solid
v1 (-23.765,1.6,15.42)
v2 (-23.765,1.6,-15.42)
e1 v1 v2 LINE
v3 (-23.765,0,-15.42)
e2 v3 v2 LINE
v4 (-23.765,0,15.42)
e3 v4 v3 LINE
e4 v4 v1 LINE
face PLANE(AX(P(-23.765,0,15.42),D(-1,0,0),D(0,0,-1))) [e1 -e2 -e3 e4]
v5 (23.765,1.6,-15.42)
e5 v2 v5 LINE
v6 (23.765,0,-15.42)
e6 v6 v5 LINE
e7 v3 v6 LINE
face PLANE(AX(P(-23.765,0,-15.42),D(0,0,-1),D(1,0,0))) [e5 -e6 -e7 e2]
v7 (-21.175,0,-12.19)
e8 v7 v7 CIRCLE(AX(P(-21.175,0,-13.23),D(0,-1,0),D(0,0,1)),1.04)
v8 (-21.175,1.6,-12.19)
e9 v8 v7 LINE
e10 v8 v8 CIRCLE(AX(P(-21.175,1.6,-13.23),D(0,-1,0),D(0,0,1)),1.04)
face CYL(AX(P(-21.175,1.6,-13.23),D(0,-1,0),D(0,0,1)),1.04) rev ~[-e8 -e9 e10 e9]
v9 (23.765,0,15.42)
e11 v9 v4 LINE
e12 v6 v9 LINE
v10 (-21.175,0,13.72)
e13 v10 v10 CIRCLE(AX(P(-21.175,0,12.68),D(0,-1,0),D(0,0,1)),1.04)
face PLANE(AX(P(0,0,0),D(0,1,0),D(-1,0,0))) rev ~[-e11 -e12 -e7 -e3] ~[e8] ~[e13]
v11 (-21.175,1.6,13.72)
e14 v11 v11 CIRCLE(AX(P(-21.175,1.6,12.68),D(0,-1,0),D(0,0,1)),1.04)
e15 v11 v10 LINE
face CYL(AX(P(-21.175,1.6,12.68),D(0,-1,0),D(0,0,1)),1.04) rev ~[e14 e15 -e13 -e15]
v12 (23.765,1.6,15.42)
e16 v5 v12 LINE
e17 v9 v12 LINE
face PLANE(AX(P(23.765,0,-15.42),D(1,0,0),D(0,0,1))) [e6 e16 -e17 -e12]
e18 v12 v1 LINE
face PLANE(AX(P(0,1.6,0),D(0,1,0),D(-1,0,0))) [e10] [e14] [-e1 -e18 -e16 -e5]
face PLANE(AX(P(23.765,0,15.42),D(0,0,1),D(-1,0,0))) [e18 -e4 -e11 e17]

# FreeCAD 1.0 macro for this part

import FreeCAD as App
import Part
import Sketcher
Q = App.Units.Quantity

doc = App.newDocument("Part")
body = doc.addObject("PartDesign::Body", "Body")

sketch1 = body.newObject("Sketcher::SketchObject", "Sketch")
sketch1.AttachmentSupport = (doc.getObject("XZ_Plane"), [""])
sketch1.MapMode = "FlatFace"
sketch1.addGeometry(Part.LineSegment(App.Vector(-24, 15, 0), App.Vector(24, 15, 0)), False)
sketch1.addGeometry(Part.LineSegment(App.Vector(24, 15, 0), App.Vector(24, -15, 0)), False)
sketch1.addGeometry(Part.LineSegment(App.Vector(24, -15, 0), App.Vector(-24, -15, 0)), False)
sketch1.addGeometry(Part.LineSegment(App.Vector(-24, -15, 0), App.Vector(-24, 15, 0)), False)
sketch1.addConstraint(Sketcher.Constraint("Coincident", 0, 2, 1, 1))
sketch1.addConstraint(Sketcher.Constraint("Coincident", 1, 2, 2, 1))
sketch1.addConstraint(Sketcher.Constraint("Coincident", 2, 2, 3, 1))
sketch1.addConstraint(Sketcher.Constraint("Coincident", 3, 2, 0, 1))
sketch1.addConstraint(Sketcher.Constraint("Horizontal", 0))
sketch1.addConstraint(Sketcher.Constraint("Vertical", 1))
sketch1.addConstraint(Sketcher.Constraint("Horizontal", 2))
sketch1.addConstraint(Sketcher.Constraint("Vertical", 3))
sketch1.addConstraint(Sketcher.Constraint("Symmetric", 0, 2, 2, 2, -1, 1))
sketch1.addConstraint(Sketcher.Constraint("DistanceX", 0, 1, 0, 2, Q("47.53 mm")))
sketch1.addConstraint(Sketcher.Constraint("DistanceY", 1, 2, 1, 1, Q("30.84 mm")))
pad1 = body.newObject("PartDesign::Pad", "Pad")
pad1.Profile = sketch1
pad1.Length = Q("0.0629921 in")
pad1.Reversed = True

sketch2 = body.newObject("Sketcher::SketchObject", "Sketch001")
sketch2.AttachmentSupport = (doc.getObject("XZ_Plane"), [""])
sketch2.MapMode = "FlatFace"
sketch2.AttachmentOffset = App.Placement(App.Vector(0, 0, -0.0629921 * 25.4), App.Rotation())
sketch2.addGeometry(Part.Circle(App.Vector(-21.2, 12.7, 0), App.Vector(0, 0, 1), 1), False)
sketch2.addGeometry(Part.Circle(App.Vector(-21.2, -13.2, 0), App.Vector(0, 0, 1), 1), False)
sketch2.addConstraint(Sketcher.Constraint("Equal", 0, 1))
sketch2.addConstraint(Sketcher.Constraint("Vertical", 0, 3, 1, 3))
sketch2.addConstraint(Sketcher.Constraint("Diameter", 0, Q("0.0819 in")))
sketch2.addConstraint(Sketcher.Constraint("DistanceX", 0, 3, -1, 1, Q("21.175 mm")))
sketch2.addConstraint(Sketcher.Constraint("DistanceY", -1, 1, 0, 3, Q("12.68 mm")))
sketch2.addConstraint(Sketcher.Constraint("DistanceY", 1, 3, -1, 1, Q("13.23 mm")))
doc.recompute()
hole = body.newObject("PartDesign::Hole", "Hole")
hole.Profile = sketch2
hole.ThreadType = "None"
hole.Diameter = Q("0.0818898 in")
hole.DepthType = "ThroughAll"
hole.Reversed = True

doc.recompute()
